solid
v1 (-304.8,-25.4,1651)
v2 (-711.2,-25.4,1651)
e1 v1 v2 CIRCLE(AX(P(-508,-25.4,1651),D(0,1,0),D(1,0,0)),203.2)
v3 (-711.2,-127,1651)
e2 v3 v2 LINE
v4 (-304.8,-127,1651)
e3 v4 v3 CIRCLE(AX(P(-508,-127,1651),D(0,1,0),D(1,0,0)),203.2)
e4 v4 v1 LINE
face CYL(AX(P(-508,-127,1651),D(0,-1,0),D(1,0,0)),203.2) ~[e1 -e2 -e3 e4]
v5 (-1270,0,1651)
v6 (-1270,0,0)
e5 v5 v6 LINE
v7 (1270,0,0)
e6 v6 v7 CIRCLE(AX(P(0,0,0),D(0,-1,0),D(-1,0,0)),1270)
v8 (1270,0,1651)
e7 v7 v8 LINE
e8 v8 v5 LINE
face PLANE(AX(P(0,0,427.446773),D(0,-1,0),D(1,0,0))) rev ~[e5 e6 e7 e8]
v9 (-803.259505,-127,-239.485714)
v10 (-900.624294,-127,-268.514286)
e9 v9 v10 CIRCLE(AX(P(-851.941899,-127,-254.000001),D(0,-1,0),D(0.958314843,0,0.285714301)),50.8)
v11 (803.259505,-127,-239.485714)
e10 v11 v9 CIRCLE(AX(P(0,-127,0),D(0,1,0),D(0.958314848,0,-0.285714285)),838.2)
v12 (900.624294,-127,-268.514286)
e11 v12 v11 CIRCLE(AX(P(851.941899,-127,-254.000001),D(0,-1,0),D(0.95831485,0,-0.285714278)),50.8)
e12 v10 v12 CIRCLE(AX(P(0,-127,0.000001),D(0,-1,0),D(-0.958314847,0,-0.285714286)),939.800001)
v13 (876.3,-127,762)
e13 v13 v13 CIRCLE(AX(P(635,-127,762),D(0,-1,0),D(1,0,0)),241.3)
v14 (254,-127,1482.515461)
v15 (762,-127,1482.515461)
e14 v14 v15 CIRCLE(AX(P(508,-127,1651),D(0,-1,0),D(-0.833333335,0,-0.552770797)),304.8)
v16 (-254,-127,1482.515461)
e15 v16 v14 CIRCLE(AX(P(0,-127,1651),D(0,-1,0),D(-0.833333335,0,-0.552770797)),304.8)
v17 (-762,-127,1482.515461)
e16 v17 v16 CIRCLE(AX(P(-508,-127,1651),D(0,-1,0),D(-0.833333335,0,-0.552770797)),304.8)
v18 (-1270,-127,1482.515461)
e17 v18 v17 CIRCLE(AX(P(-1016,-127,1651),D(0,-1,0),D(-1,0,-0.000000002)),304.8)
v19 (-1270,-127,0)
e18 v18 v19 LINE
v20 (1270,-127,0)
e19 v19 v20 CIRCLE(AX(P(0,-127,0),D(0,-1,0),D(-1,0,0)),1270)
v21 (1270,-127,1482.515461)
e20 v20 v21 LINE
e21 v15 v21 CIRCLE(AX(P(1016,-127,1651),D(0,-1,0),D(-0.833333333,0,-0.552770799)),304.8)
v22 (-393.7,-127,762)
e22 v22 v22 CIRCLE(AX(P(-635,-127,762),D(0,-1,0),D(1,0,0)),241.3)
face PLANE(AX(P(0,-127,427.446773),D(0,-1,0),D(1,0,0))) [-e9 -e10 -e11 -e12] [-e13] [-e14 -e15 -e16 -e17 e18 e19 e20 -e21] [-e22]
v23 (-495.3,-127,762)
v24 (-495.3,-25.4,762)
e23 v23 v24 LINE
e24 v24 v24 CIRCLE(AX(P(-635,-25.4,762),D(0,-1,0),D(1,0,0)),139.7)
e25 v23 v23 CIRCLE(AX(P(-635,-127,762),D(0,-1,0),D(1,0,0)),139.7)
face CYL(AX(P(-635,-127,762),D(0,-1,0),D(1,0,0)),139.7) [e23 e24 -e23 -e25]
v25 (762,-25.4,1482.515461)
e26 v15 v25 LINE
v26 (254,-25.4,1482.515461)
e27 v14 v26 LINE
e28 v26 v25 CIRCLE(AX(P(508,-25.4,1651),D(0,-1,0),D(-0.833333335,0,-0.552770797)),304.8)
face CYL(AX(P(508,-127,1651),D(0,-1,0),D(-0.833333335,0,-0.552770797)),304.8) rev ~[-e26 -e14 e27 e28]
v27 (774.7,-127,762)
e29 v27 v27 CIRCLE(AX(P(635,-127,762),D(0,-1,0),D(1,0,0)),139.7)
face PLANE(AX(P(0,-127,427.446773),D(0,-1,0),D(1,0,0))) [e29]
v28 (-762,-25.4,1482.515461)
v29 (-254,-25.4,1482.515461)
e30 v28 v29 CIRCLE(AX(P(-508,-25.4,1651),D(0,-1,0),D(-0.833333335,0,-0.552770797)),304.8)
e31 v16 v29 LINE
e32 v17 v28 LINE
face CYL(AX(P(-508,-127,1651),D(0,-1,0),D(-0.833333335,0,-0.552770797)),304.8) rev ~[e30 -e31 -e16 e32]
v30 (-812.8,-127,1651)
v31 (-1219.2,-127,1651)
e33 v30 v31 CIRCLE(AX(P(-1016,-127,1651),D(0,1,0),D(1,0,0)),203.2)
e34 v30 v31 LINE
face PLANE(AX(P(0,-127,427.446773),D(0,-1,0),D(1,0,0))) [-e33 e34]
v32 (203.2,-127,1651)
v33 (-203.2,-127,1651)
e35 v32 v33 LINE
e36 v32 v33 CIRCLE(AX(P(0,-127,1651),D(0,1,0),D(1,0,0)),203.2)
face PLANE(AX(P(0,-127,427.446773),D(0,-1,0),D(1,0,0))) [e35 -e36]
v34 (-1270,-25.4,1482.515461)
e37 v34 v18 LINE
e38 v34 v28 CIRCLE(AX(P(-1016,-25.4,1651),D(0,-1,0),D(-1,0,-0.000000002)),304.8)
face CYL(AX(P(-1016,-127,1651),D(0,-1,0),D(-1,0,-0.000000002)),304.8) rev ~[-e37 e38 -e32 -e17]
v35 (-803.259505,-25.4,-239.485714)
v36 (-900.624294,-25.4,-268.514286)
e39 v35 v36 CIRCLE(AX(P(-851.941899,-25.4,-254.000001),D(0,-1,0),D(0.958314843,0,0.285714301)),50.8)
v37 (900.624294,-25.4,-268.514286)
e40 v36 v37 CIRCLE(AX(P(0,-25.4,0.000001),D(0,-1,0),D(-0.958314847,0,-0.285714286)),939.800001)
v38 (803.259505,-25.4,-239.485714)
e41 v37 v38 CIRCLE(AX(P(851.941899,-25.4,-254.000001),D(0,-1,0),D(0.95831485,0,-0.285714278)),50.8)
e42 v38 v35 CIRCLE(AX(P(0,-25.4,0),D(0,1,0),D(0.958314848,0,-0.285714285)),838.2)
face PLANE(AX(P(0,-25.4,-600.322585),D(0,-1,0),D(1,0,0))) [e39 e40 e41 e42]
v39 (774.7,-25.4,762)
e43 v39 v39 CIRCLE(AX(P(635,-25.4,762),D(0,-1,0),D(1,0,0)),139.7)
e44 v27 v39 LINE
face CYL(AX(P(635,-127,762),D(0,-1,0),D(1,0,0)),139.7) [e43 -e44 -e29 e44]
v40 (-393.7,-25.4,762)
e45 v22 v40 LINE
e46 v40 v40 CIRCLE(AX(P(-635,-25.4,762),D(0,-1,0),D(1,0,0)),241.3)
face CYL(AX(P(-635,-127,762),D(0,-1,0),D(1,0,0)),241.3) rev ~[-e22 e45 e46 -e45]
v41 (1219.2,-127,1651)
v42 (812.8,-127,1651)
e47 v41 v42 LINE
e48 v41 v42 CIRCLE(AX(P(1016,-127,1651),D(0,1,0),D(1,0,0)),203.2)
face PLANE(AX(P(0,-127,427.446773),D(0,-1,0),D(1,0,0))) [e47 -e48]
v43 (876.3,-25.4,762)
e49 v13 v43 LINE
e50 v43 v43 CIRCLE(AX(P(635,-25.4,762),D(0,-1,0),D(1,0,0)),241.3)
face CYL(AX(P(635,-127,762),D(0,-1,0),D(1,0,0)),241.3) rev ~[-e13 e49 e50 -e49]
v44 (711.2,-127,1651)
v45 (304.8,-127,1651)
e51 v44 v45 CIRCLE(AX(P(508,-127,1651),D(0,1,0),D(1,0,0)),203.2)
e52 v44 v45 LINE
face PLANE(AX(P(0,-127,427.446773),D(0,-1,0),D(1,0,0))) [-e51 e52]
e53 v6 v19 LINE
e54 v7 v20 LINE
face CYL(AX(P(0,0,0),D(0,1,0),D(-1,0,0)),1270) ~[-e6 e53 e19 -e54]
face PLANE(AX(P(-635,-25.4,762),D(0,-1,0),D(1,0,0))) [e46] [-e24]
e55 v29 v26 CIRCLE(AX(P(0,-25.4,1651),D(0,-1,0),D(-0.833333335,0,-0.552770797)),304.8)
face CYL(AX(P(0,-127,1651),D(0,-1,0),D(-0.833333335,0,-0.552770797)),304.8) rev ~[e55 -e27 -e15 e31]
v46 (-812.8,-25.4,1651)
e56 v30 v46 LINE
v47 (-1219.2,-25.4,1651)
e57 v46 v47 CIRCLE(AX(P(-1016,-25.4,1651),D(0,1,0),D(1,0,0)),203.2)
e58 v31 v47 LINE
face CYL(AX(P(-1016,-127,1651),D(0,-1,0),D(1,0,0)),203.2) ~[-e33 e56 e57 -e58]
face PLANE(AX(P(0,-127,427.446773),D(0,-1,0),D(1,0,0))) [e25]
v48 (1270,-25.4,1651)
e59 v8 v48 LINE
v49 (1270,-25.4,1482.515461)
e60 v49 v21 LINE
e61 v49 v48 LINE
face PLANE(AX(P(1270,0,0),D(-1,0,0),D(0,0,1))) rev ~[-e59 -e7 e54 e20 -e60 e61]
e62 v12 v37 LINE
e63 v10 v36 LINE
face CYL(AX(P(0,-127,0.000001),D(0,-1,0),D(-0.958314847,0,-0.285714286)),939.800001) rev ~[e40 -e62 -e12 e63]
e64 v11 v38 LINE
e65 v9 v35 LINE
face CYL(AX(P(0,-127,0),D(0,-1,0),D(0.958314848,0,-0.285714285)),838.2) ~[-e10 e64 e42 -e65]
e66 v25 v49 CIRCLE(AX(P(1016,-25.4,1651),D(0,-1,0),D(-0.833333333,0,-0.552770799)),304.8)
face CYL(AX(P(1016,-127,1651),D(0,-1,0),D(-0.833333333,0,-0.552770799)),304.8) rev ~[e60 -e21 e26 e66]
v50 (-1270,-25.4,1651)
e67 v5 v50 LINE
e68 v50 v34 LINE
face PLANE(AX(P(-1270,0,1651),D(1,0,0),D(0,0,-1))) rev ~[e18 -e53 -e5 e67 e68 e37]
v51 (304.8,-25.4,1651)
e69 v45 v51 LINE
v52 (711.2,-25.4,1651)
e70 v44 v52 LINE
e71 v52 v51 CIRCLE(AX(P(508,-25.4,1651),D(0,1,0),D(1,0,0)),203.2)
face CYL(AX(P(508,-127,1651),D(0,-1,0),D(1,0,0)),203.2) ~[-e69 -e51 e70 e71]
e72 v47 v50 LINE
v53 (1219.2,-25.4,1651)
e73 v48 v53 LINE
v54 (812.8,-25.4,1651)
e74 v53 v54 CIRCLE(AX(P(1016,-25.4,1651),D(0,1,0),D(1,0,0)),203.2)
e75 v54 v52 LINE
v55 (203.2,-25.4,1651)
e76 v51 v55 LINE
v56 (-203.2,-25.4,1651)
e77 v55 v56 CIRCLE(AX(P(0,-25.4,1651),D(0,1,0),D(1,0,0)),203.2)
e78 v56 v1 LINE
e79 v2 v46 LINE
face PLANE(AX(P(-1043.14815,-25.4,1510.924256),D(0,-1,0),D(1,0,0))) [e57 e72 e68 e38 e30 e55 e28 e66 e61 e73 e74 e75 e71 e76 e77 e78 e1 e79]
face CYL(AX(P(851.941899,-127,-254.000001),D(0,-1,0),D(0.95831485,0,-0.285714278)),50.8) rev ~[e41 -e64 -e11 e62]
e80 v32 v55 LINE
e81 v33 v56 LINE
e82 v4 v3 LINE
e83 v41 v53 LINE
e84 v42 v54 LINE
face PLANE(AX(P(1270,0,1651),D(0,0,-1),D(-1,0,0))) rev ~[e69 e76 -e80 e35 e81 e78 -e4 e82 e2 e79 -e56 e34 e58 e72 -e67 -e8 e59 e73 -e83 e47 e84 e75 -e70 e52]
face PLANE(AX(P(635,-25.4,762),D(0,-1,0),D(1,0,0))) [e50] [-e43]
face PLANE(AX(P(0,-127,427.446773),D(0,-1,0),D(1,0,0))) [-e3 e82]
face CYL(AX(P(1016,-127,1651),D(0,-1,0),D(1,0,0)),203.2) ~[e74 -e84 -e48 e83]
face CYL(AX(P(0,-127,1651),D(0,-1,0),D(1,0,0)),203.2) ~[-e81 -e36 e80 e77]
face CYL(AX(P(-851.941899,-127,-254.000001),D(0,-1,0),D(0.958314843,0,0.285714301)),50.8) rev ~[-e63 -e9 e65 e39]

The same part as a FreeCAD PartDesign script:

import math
import FreeCAD as App
import Part
import Sketcher

V = App.Vector
Q = App.Units.Quantity

doc = App.newDocument("Part")
body = doc.addObject("PartDesign::Body", "Body")

# Sketch on XZ plane
sketch1 = body.newObject("Sketcher::SketchObject", "Sketch")
sketch1.AttachmentSupport = (doc.getObject("XZ_Plane"), [""])
sketch1.MapMode = "FlatFace"
sketch1.addGeometry([
    Part.LineSegment(V(-1270, 1651, 0), V(-1270, 0, 0)),
    Part.ArcOfCircle(Part.Circle(V(0, 0, 0), V(0, 0, 1), 1270), math.radians(180), math.radians(360)),
    Part.LineSegment(V(1270, 0, 0), V(1270, 1651, 0)),
    Part.LineSegment(V(1270, 1651, 0), V(-1270, 1651, 0)),
], False)
sketch1.addConstraint([
    Sketcher.Constraint("Coincident", 0, 2, 1, 1),
    Sketcher.Constraint("Coincident", 1, 2, 2, 1),
    Sketcher.Constraint("Coincident", 2, 2, 3, 1),
    Sketcher.Constraint("Coincident", 3, 2, 0, 1),
    Sketcher.Constraint("Vertical", 0),
    Sketcher.Constraint("Vertical", 2),
    Sketcher.Constraint("Horizontal", 3),
    Sketcher.Constraint("Coincident", 1, 3, -1, 1),
    Sketcher.Constraint("PointOnObject", 0, 2, -1),
    Sketcher.Constraint("Equal", 0, 2),
    Sketcher.Constraint("Radius", 1, Q("50 in")),
    Sketcher.Constraint("DistanceY", 0, 2, 0, 1, Q("65 in")),
])
pad1 = body.newObject("PartDesign::Pad", "Pad")
pad1.Profile = sketch1
pad1.Length = Q("5 in")

# Sketch on XZ plane
sketch2 = body.newObject("Sketcher::SketchObject", "Sketch001")
sketch2.AttachmentSupport = (doc.getObject("XZ_Plane"), [""])
sketch2.MapMode = "FlatFace"
sketch2.AttachmentOffset = App.Placement(V(0, 0, 5 * 25.4), App.Rotation())
sketch2.addGeometry([
    Part.ArcOfCircle(Part.Circle(V(-1270, 1651, 0), V(0, 0, 1), 51), math.radians(0), math.radians(180)),  # 0
    Part.ArcOfCircle(Part.Circle(V(-1016, 1651, 0), V(0, 0, 1), 305), math.radians(-180), math.radians(-34)),  # 1
    Part.ArcOfCircle(Part.Circle(V(-508, 1651, 0), V(0, 0, 1), 305), math.radians(-146), math.radians(-34)),  # 2
    Part.ArcOfCircle(Part.Circle(V(0, 1651, 0), V(0, 0, 1), 305), math.radians(-146), math.radians(-34)),  # 3
    Part.ArcOfCircle(Part.Circle(V(508, 1651, 0), V(0, 0, 1), 305), math.radians(-146), math.radians(-34)),  # 4
    Part.ArcOfCircle(Part.Circle(V(1016, 1651, 0), V(0, 0, 1), 305), math.radians(-146), math.radians(0)),  # 5
    Part.ArcOfCircle(Part.Circle(V(1270, 1651, 0), V(0, 0, 1), 51), math.radians(0), math.radians(180)),  # 6
    Part.ArcOfCircle(Part.Circle(V(1016, 1651, 0), V(0, 0, 1), 203), math.radians(180), math.radians(360)),  # 7
    Part.ArcOfCircle(Part.Circle(V(762, 1651, 0), V(0, 0, 1), 51), math.radians(0), math.radians(180)),  # 8
    Part.ArcOfCircle(Part.Circle(V(508, 1651, 0), V(0, 0, 1), 203), math.radians(180), math.radians(360)),  # 9
    Part.ArcOfCircle(Part.Circle(V(254, 1651, 0), V(0, 0, 1), 51), math.radians(0), math.radians(180)),  # 10
    Part.ArcOfCircle(Part.Circle(V(0, 1651, 0), V(0, 0, 1), 203), math.radians(180), math.radians(360)),  # 11
    Part.ArcOfCircle(Part.Circle(V(-254, 1651, 0), V(0, 0, 1), 51), math.radians(0), math.radians(180)),  # 12
    Part.ArcOfCircle(Part.Circle(V(-508, 1651, 0), V(0, 0, 1), 203), math.radians(180), math.radians(360)),  # 13
    Part.ArcOfCircle(Part.Circle(V(-762, 1651, 0), V(0, 0, 1), 51), math.radians(0), math.radians(180)),  # 14
    Part.ArcOfCircle(Part.Circle(V(-1016, 1651, 0), V(0, 0, 1), 203), math.radians(180), math.radians(360)),  # 15
    Part.ArcOfCircle(Part.Circle(V(-852, -254, 0), V(0, 0, 1), 51), math.radians(17), math.radians(197)),  # 16
    Part.ArcOfCircle(Part.Circle(V(0, 0, 0), V(0, 0, 1), 940), math.radians(-163), math.radians(-17)),  # 17
    Part.ArcOfCircle(Part.Circle(V(852, -254, 0), V(0, 0, 1), 51), math.radians(-17), math.radians(163)),  # 18
    Part.ArcOfCircle(Part.Circle(V(0, 0, 0), V(0, 0, 1), 838), math.radians(-163), math.radians(-17)),  # 19
    Part.Circle(V(-635, 762, 0), V(0, 0, 1), 241),  # 20
    Part.Circle(V(-635, 762, 0), V(0, 0, 1), 140),  # 21
    Part.Circle(V(635, 762, 0), V(0, 0, 1), 241),  # 22
    Part.Circle(V(635, 762, 0), V(0, 0, 1), 140),  # 23
], False)
sketch2.addConstraint([
    Sketcher.Constraint("Tangent", 0, 2, 1, 1),
    Sketcher.Constraint("Coincident", 1, 2, 2, 1),
    Sketcher.Constraint("Coincident", 2, 2, 3, 1),
    Sketcher.Constraint("Coincident", 3, 2, 4, 1),
    Sketcher.Constraint("Coincident", 4, 2, 5, 1),
    Sketcher.Constraint("Tangent", 5, 2, 6, 1),
    Sketcher.Constraint("Tangent", 6, 2, 7, 2),
    Sketcher.Constraint("Tangent", 7, 1, 8, 1),
    Sketcher.Constraint("Tangent", 8, 2, 9, 2),
    Sketcher.Constraint("Tangent", 9, 1, 10, 1),
    Sketcher.Constraint("Tangent", 10, 2, 11, 2),
    Sketcher.Constraint("Tangent", 11, 1, 12, 1),
    Sketcher.Constraint("Tangent", 12, 2, 13, 2),
    Sketcher.Constraint("Tangent", 13, 1, 14, 1),
    Sketcher.Constraint("Tangent", 14, 2, 15, 2),
    Sketcher.Constraint("Tangent", 15, 1, 0, 1),
    Sketcher.Constraint("Tangent", 16, 2, 17, 1),
    Sketcher.Constraint("Tangent", 17, 2, 18, 1),
    Sketcher.Constraint("Tangent", 18, 2, 19, 2),
    Sketcher.Constraint("Tangent", 19, 1, 16, 1),
    Sketcher.Constraint("Coincident", 17, 3, -1, 1),
    Sketcher.Constraint("Coincident", 19, 3, -1, 1),
    Sketcher.Constraint("Coincident", 7, 3, 5, 3),
    Sketcher.Constraint("Coincident", 9, 3, 4, 3),
    Sketcher.Constraint("Coincident", 11, 3, 3, 3),
    Sketcher.Constraint("Coincident", 13, 3, 2, 3),
    Sketcher.Constraint("Coincident", 15, 3, 1, 3),
    Sketcher.Constraint("Coincident", 21, 3, 20, 3),
    Sketcher.Constraint("Coincident", 23, 3, 22, 3),
    Sketcher.Constraint("Equal", 1, 2),
    Sketcher.Constraint("Equal", 2, 3),
    Sketcher.Constraint("Equal", 3, 4),
    Sketcher.Constraint("Equal", 4, 5),
    Sketcher.Constraint("Equal", 0, 6),
    Sketcher.Constraint("Equal", 6, 8),
    Sketcher.Constraint("Equal", 7, 9),
    Sketcher.Constraint("Equal", 8, 10),
    Sketcher.Constraint("Equal", 9, 11),
    Sketcher.Constraint("Equal", 10, 12),
    Sketcher.Constraint("Equal", 11, 13),
    Sketcher.Constraint("Equal", 12, 14),
    Sketcher.Constraint("Equal", 14, 16),
    Sketcher.Constraint("Equal", 20, 22),
    Sketcher.Constraint("Equal", 21, 23),
    Sketcher.Constraint("Symmetric", 2, 3, 4, 3, -2),
    Sketcher.Constraint("Symmetric", 20, 3, 22, 3, -2),
    Sketcher.Constraint("Horizontal", 0, 3, 1, 3),
    Sketcher.Constraint("Horizontal", 1, 3, 2, 3),
    Sketcher.Constraint("Horizontal", 2, 3, 3, 3),
    Sketcher.Constraint("Horizontal", 4, 3, 5, 3),
    Sketcher.Constraint("Horizontal", 5, 3, 6, 3),
    Sketcher.Constraint("Horizontal", 7, 3, 8, 3),
    Sketcher.Constraint("Horizontal", 9, 3, 10, 3),
    Sketcher.Constraint("Horizontal", 11, 3, 12, 3),
    Sketcher.Constraint("Horizontal", 13, 3, 14, 3),
    Sketcher.Constraint("Horizontal", 16, 3, 18, 3),
    Sketcher.Constraint("Diameter", 20, Q("19 in")),
    Sketcher.Constraint("Diameter", 21, Q("11 in")),
    Sketcher.Constraint("Radius", 0, Q("2 in")),
    Sketcher.Constraint("Radius", 1, Q("12 in")),
    Sketcher.Constraint("Radius", 17, Q("37 in")),
    Sketcher.Constraint("DistanceY", -1, 1, 0, 3, Q("65 in")),
    Sketcher.Constraint("DistanceY", 16, 3, -1, 1, Q("10 in")),
    Sketcher.Constraint("DistanceX", 20, 3, -1, 1, Q("25 in")),
    Sketcher.Constraint("DistanceY", -1, 1, 20, 3, Q("30 in")),
])
pocket1 = body.newObject("PartDesign::Pocket", "Pocket")
pocket1.Profile = sketch2
pocket1.Length = Q("4 in")

# Sketch on XZ plane
sketch3 = body.newObject("Sketcher::SketchObject", "Sketch002")
sketch3.AttachmentSupport = (doc.getObject("XZ_Plane"), [""])
sketch3.MapMode = "FlatFace"
sketch3.AttachmentOffset = App.Placement(V(0, 0, 1 * 25.4), App.Rotation())
sketch3.addGeometry(Part.Circle(V(-635, 762, 0), V(0, 0, 1), 140), False)
sketch3.addConstraint([
    Sketcher.Constraint("Diameter", 0, Q("11 in")),
    Sketcher.Constraint("DistanceX", 0, 3, -1, 1, Q("25 in")),
    Sketcher.Constraint("DistanceY", -1, 1, 0, 3, Q("30 in")),
])
pad2 = body.newObject("PartDesign::Pad", "Pad001")
pad2.Profile = sketch3
pad2.Length = Q("4 in")

doc.recompute()
